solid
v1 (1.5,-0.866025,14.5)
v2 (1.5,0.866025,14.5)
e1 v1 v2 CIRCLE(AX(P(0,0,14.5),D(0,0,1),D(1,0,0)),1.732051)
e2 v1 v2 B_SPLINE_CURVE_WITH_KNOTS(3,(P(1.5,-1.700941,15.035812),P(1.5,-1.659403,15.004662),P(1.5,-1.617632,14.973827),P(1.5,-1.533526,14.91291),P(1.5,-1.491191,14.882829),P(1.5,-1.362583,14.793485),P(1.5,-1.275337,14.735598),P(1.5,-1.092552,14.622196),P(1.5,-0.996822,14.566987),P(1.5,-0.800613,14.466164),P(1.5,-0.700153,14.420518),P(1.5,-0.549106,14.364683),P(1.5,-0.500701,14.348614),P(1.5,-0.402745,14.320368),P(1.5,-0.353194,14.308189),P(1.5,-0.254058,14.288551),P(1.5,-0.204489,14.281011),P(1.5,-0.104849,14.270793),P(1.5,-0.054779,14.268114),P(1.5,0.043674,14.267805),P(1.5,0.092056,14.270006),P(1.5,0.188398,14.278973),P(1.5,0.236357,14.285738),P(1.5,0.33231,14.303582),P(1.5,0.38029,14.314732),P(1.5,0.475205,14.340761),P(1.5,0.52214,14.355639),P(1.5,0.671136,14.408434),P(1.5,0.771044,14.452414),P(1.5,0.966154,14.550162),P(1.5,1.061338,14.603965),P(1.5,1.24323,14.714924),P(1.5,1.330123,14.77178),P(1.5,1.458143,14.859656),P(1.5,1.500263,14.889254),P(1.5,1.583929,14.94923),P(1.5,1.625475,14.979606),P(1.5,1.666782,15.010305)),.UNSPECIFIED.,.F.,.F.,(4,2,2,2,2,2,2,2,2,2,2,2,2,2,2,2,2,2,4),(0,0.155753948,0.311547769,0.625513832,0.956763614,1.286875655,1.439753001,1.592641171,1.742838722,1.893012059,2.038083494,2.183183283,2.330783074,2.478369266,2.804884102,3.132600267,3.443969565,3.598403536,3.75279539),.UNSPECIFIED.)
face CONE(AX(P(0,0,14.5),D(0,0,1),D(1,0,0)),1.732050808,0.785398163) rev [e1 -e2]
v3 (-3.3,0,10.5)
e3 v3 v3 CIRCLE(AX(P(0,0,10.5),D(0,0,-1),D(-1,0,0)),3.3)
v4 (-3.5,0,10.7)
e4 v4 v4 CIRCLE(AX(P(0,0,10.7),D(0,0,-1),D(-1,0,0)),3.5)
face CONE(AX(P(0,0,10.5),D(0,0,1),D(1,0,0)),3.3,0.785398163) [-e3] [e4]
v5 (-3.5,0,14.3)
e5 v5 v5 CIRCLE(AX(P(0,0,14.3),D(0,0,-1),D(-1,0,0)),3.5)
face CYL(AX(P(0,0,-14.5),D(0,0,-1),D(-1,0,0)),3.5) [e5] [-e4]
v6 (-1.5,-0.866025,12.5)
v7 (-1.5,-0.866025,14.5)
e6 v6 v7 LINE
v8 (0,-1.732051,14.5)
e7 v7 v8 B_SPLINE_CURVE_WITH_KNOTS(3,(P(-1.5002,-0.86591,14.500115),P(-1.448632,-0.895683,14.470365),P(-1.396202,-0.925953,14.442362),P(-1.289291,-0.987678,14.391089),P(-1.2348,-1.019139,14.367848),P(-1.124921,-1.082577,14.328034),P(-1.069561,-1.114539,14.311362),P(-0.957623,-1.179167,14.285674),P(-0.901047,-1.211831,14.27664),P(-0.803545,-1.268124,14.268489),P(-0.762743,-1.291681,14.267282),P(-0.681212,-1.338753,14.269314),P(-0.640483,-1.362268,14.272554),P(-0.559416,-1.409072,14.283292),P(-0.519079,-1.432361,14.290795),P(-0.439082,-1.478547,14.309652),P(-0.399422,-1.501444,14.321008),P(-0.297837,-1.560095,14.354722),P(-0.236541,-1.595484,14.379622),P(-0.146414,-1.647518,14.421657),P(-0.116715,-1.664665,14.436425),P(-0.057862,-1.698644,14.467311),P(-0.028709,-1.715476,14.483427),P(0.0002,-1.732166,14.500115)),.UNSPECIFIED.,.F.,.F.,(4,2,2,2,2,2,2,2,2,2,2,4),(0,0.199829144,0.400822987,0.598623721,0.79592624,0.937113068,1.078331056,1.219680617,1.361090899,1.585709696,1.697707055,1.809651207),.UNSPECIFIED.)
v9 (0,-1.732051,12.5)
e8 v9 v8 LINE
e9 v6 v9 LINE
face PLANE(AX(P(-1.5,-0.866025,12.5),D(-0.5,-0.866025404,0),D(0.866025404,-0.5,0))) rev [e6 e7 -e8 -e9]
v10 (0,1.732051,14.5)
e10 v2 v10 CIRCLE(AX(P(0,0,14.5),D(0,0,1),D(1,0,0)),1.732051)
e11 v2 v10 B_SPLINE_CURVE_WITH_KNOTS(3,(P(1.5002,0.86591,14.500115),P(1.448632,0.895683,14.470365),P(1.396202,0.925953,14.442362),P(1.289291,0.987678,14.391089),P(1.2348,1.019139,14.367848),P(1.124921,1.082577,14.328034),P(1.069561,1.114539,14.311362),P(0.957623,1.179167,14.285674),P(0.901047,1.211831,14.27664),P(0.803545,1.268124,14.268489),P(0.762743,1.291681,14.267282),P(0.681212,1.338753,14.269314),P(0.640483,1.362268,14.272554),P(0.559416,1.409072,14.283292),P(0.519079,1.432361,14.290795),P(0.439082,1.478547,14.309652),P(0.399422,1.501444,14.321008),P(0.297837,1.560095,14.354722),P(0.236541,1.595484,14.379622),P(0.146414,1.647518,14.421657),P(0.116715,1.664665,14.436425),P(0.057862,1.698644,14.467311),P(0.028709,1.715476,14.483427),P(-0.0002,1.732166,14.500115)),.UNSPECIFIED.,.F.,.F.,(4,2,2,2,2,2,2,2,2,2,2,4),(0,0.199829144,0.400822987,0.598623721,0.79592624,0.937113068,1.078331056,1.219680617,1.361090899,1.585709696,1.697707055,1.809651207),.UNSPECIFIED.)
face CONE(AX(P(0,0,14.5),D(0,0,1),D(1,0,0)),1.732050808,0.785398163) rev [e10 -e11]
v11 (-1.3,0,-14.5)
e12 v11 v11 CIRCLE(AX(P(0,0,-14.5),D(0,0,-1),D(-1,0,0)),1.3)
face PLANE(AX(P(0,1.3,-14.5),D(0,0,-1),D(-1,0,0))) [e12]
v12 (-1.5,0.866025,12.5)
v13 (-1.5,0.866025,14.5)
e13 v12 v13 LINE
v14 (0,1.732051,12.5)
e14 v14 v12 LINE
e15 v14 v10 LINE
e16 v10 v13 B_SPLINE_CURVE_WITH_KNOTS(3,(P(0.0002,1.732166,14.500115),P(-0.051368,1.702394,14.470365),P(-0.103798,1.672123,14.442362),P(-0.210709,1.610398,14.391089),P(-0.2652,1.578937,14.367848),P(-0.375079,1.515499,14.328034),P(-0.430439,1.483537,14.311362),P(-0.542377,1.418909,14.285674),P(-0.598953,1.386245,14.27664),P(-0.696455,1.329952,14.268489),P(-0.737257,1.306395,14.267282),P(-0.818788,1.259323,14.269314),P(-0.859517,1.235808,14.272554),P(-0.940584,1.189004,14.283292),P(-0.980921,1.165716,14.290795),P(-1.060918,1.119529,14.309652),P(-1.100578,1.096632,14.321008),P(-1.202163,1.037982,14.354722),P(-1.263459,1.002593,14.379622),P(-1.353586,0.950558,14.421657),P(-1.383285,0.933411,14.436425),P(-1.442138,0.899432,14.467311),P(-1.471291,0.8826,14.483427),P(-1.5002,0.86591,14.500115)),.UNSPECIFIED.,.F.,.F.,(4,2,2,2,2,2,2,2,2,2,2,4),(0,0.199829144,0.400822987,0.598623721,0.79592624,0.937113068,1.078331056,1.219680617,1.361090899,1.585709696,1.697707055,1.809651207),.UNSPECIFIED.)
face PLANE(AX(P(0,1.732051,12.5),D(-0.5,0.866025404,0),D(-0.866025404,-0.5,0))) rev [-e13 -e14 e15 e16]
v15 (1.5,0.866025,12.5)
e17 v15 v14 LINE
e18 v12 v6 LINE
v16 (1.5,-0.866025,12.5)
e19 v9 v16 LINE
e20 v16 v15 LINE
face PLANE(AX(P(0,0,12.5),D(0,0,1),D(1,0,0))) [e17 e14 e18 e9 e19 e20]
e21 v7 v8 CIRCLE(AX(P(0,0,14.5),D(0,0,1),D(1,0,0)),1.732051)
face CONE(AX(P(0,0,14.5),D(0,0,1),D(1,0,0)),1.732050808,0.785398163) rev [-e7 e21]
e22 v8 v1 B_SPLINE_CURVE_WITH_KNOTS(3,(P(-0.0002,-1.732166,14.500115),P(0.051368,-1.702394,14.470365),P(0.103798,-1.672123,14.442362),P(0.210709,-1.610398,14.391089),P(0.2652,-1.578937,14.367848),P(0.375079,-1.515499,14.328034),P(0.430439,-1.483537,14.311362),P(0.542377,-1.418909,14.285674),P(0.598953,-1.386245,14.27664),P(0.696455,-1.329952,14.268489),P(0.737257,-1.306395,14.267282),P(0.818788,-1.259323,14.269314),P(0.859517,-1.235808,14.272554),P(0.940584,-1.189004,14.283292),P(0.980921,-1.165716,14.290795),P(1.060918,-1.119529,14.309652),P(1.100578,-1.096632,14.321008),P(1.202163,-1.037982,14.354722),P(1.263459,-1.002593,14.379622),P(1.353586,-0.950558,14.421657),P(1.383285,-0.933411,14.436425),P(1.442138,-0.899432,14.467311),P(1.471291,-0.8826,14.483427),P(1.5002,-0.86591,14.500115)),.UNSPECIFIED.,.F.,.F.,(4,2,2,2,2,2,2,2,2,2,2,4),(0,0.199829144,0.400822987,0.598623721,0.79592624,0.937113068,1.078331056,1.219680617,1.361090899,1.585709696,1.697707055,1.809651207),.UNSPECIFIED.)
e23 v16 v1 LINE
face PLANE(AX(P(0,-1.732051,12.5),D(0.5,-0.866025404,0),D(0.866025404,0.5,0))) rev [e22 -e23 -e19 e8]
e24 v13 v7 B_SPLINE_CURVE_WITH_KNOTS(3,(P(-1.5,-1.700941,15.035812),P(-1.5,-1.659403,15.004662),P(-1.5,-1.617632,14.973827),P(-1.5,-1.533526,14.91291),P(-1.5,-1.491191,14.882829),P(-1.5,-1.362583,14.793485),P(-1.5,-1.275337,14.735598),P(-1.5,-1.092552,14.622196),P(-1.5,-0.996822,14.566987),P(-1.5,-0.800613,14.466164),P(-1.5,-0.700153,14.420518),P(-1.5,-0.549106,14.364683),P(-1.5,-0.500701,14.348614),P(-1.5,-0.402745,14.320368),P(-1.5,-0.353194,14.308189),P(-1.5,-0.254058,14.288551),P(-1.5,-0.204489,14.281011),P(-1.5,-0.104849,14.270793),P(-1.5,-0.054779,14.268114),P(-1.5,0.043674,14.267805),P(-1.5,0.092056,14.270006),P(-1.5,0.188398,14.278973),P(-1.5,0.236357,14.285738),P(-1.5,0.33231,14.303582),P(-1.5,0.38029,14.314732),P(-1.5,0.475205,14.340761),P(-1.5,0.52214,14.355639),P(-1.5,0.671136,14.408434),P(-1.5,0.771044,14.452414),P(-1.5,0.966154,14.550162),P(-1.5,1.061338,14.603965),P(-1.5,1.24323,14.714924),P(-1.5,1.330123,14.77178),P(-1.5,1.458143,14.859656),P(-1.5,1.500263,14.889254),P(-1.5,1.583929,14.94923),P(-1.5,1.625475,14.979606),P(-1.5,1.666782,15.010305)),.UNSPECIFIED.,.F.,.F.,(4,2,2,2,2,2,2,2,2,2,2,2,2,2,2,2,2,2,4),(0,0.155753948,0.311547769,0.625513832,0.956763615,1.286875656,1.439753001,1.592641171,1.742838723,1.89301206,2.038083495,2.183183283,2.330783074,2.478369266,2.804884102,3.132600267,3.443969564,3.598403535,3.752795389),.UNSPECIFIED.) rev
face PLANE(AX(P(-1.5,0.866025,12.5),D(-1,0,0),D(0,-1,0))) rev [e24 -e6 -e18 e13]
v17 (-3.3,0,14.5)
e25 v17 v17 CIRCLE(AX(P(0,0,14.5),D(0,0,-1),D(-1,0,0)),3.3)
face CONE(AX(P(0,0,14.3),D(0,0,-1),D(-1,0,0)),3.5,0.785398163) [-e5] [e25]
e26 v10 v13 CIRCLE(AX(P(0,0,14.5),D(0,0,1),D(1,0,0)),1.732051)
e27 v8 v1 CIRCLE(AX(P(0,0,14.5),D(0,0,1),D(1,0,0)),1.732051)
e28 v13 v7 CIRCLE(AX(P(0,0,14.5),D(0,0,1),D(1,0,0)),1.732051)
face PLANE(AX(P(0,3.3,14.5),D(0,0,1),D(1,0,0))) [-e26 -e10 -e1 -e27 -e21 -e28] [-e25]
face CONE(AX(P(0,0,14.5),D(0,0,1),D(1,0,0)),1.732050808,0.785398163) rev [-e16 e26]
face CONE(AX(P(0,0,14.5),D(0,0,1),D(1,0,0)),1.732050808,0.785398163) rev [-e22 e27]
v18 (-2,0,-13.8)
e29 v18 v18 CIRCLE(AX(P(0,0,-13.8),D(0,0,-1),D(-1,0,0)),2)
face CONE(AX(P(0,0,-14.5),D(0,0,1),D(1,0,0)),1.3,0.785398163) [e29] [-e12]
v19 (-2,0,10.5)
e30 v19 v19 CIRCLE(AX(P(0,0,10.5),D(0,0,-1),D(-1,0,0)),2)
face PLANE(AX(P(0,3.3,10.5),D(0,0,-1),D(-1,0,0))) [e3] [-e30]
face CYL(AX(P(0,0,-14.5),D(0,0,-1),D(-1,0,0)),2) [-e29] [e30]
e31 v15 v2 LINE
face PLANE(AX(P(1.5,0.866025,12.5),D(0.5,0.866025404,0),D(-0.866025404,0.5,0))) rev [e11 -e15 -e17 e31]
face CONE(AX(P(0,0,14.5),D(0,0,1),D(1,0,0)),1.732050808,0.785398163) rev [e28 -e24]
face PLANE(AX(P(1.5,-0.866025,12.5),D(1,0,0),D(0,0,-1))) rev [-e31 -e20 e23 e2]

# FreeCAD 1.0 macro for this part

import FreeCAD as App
import Part
import Sketcher

V = App.Vector
Q = App.Units.Quantity


def faces_at(feature, points):
    """Names of the faces that lie closest to the given points."""
    faces = feature.Shape.Faces
    near = lambda p: min(range(len(faces)), key=lambda i: faces[i].distToShape(Part.Vertex(*p))[0])
    return sorted({f"Face{near(p) + 1}" for p in points})


def add_polygon(sketch, points):
    """Adds a closed chain of lines whose ends are joined by coincident constraints."""
    first, n = sketch.GeometryCount, len(points)
    for a, b in zip(points, points[1:] + points[:1]):
        sketch.addGeometry(Part.LineSegment(App.Vector(*a, 0), App.Vector(*b, 0)), False)
    for i in range(n):
        sketch.addConstraint(Sketcher.Constraint("Coincident", first + i, 2, first + (i + 1) % n, 1))

doc = App.newDocument("Part")
body = doc.addObject("PartDesign::Body", "Body")

sketch1 = body.newObject("Sketcher::SketchObject", "Sketch")
sketch1.AttachmentSupport = (doc.getObject("YZ_Plane"), [""])
sketch1.MapMode = "FlatFace"
add_polygon(sketch1, [(3.5, 10.7), (3.5, 14.3), (3.3, 14.5), (0, 14.5), (0, -14.5), (1.3, -14.5), (2, -13.8), (2, 10.5), (3.3, 10.5)])
sketch1.addConstraint(Sketcher.Constraint("Vertical", 0))
sketch1.addConstraint(Sketcher.Constraint("Horizontal", 2))
sketch1.addConstraint(Sketcher.Constraint("Vertical", 3))
sketch1.addConstraint(Sketcher.Constraint("Horizontal", 4))
sketch1.addConstraint(Sketcher.Constraint("Vertical", 6))
sketch1.addConstraint(Sketcher.Constraint("Horizontal", 7))
sketch1.addConstraint(Sketcher.Constraint("Symmetric", 2, 2, 3, 2, -1, 1))
sketch1.addConstraint(Sketcher.Constraint("Perpendicular", 1, 5))
sketch1.addConstraint(Sketcher.Constraint("Parallel", 5, 8))
sketch1.addConstraint(Sketcher.Constraint("Vertical", 1, 2, 7, 2))
sketch1.addConstraint(Sketcher.Constraint("Equal", 4, 7))
sketch1.addConstraint(Sketcher.Constraint("Equal", 1, 8))
sketch1.addConstraint(Sketcher.Constraint("DistanceY", 3, 2, 3, 1, Q("29 mm")))
sketch1.addConstraint(Sketcher.Constraint("DistanceX", 2, 2, 2, 1, Q("3.3 mm")))
sketch1.addConstraint(Sketcher.Constraint("DistanceX", 4, 1, 4, 2, Q("1.3 mm")))
sketch1.addConstraint(Sketcher.Constraint("DistanceY", 0, 1, 0, 2, Q("3.6 mm")))
sketch1.addConstraint(Sketcher.Constraint("DistanceY", 6, 1, 6, 2, Q("24.3 mm")))
revolution = body.newObject("PartDesign::Revolution", "Revolution")
revolution.Profile = sketch1
revolution.ReferenceAxis = (sketch1, ["V_Axis"])
revolution.Angle = 360

sketch2 = body.newObject("Sketcher::SketchObject", "Sketch001")
sketch2.AttachmentSupport = (doc.getObject("XY_Plane"), [""])
sketch2.MapMode = "FlatFace"
sketch2.AttachmentOffset = App.Placement(V(0, 0, 12.5), App.Rotation())
add_polygon(sketch2, [(0, 1.7), (-1.5, 0.9), (-1.5, -0.9), (0, -1.7), (1.5, -0.9), (1.5, 0.9)])
sketch2.addConstraint(Sketcher.Constraint("Vertical", 1))
sketch2.addConstraint(Sketcher.Constraint("Vertical", 4))
sketch2.addConstraint(Sketcher.Constraint("Symmetric", 0, 2, 3, 2, -1, 1))
sketch2.addConstraint(Sketcher.Constraint("Symmetric", 2, 2, 5, 2, -1, 1))
sketch2.addConstraint(Sketcher.Constraint("PointOnObject", 2, 2, -2))
sketch2.addConstraint(Sketcher.Constraint("Parallel", 2, 5))
sketch2.addConstraint(Sketcher.Constraint("Horizontal", 1, 2, 3, 2))
sketch2.addConstraint(Sketcher.Constraint("Angle", 0, Q("-150 deg")))
sketch2.addConstraint(Sketcher.Constraint("DistanceX", 1, 2, 3, 2, Q("3 mm")))
sketch2.addConstraint(Sketcher.Constraint("DistanceY", 1, 2, 1, 1, Q("1.732051 mm")))
pocket1 = body.newObject("PartDesign::Pocket", "Pocket")
pocket1.Profile = sketch2
pocket1.Length = 2
pocket1.Reversed = True
body2 = doc.addObject("PartDesign::Body", "Body001")

sketch3 = body2.newObject("Sketcher::SketchObject", "Sketch002")
sketch3.AttachmentSupport = (doc.getObject("XY_Plane001"), [""])
sketch3.MapMode = "FlatFace"
sketch3.AttachmentOffset = App.Placement(V(0, 0, 14.5), App.Rotation())
sketch3.addGeometry(Part.Circle(V(0, 0, 0), V(0, 0, 1), 1.7), False)
sketch3.addConstraint(Sketcher.Constraint("Coincident", 0, 3, -1, 1))
sketch3.addConstraint(Sketcher.Constraint("Diameter", 0, Q("3.464102 mm")))
pad1 = body2.newObject("PartDesign::Pad", "Pad")
pad1.Profile = sketch3
pad1.Length = 0.5
pad1.Reversed = True
doc.recompute()

datumplane = body2.newObject("PartDesign::Plane", "DatumPlane")
datumplane.AttachmentSupport = (doc.getObject("XY_Plane001"), [""])
datumplane.MapMode = "FlatFace"
datumplane.AttachmentOffset = App.Placement(V(0, 0, 14.5), App.Rotation())
draft = body2.newObject("PartDesign::Draft", "Draft")
draft.Base = (pad1, faces_at(pad1, [(-1.732, 0, 14.25)]))
draft.NeutralPlane = (datumplane, [""])
draft.Angle = 45
draft.Reversed = True
doc.recompute()

boolean = body.newObject("PartDesign::Boolean", "Boolean")
boolean.Type = "Cut"
boolean.addObjects([body2])

doc.recompute()
